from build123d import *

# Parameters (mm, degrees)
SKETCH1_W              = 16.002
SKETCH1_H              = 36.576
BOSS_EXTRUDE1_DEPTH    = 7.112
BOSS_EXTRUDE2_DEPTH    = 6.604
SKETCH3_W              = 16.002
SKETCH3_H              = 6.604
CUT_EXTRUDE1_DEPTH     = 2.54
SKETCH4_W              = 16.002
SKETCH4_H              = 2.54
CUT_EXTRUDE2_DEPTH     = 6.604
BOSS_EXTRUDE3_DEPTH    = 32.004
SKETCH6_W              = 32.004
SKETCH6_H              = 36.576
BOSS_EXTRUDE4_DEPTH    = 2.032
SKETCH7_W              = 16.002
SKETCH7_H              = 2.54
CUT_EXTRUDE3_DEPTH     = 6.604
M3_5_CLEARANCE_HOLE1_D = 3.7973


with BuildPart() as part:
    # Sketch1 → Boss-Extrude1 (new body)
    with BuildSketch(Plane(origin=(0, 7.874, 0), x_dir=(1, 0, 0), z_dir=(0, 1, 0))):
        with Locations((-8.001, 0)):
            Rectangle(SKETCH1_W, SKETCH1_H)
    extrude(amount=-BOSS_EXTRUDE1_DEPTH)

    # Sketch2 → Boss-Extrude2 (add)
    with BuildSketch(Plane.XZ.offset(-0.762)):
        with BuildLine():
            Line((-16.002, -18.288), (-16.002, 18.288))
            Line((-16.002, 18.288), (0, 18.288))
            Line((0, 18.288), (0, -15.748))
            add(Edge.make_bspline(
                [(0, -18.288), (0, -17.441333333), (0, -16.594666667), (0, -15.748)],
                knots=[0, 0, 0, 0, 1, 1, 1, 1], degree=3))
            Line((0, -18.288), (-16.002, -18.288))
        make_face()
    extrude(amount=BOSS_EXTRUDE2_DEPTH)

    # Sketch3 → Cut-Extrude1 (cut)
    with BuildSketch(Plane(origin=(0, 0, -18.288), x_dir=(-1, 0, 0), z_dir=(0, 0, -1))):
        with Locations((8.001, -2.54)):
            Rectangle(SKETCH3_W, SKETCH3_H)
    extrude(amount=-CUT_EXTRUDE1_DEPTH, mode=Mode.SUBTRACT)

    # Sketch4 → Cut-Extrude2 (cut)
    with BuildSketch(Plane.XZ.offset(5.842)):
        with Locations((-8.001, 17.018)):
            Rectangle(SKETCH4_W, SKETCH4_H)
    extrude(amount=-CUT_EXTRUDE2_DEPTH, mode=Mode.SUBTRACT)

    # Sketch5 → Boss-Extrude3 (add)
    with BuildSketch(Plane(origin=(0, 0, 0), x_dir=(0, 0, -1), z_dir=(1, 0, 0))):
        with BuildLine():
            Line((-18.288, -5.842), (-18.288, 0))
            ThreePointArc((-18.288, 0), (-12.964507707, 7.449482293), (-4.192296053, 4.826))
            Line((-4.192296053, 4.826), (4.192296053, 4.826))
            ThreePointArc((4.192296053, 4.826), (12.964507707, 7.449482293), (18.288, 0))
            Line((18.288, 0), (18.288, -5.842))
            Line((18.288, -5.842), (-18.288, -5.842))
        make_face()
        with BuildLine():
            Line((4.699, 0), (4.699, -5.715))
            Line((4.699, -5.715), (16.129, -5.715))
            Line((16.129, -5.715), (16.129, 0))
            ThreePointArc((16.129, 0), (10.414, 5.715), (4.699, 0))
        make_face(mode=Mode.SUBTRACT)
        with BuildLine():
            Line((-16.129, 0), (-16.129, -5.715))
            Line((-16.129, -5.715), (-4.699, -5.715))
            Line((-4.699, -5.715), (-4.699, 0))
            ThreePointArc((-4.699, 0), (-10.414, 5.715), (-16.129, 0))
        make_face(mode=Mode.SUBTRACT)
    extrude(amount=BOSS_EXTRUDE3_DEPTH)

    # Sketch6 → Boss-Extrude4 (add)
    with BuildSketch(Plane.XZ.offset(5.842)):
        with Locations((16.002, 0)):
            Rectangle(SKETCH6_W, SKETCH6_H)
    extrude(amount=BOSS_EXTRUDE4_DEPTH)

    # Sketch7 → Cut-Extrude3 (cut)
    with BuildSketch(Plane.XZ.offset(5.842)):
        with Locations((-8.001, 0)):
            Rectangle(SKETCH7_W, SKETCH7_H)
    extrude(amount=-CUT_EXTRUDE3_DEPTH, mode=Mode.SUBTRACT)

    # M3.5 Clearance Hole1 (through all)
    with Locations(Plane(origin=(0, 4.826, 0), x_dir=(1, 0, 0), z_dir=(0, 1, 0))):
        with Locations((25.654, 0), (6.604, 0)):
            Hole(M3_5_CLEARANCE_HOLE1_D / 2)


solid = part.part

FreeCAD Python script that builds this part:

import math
import FreeCAD as App
import Part
import Sketcher
Q = App.Units.Quantity


def add_polygon(sketch, points):
    """Adds a closed chain of lines whose ends are joined by coincident constraints."""
    first, n = sketch.GeometryCount, len(points)
    for a, b in zip(points, points[1:] + points[:1]):
        sketch.addGeometry(Part.LineSegment(App.Vector(*a, 0), App.Vector(*b, 0)), False)
    for i in range(n):
        sketch.addConstraint(Sketcher.Constraint("Coincident", first + i, 2, first + (i + 1) % n, 1))

doc = App.newDocument("Part")
body = doc.addObject("PartDesign::Body", "Body")

sketch1 = body.newObject("Sketcher::SketchObject", "Sketch")
sketch1.AttachmentSupport = (doc.getObject("XZ_Plane"), [""])
sketch1.MapMode = "FlatFace"
sketch1.AttachmentOffset = App.Placement(App.Vector(0, 0, -0.31 * 25.4), App.Rotation())
add_polygon(sketch1, [(-16.002, -18.288), (-16.002, 18.288), (0, 18.288), (0, -18.288)])
sketch1.addConstraint([
    Sketcher.Constraint("Vertical", 0),
    Sketcher.Constraint("Horizontal", 1),
    Sketcher.Constraint("Vertical", 2),
    Sketcher.Constraint("Horizontal", 3),
    Sketcher.Constraint("Symmetric", 1, 2, 2, 2, -1, 1),
    Sketcher.Constraint("DistanceX", 1, 1, 1, 2, Q("0.63 in")),
    Sketcher.Constraint("DistanceY", 0, 1, 0, 2, Q("1.44 in")),
])
pad1 = body.newObject("PartDesign::Pad", "Pad")
pad1.Profile = sketch1
pad1.Length = Q("0.28 in")

sketch2 = body.newObject("Sketcher::SketchObject", "Sketch001")
sketch2.AttachmentSupport = (doc.getObject("XZ_Plane"), [""])
sketch2.MapMode = "FlatFace"
sketch2.AttachmentOffset = App.Placement(App.Vector(0, 0, -0.03 * 25.4), App.Rotation())
sketch2.addGeometry([
    Part.LineSegment(App.Vector(-16.002, 18.288, 0), App.Vector(-16.002, -18.288, 0)),
    Part.LineSegment(App.Vector(-16.002, -18.288, 0), App.Vector(0, -18.288, 0)),
    Part.BSplineCurve([App.Vector(0, -18.288, 0), App.Vector(0, -17.441333, 0), App.Vector(0, -16.594667, 0), App.Vector(0, -15.748, 0)], [4, 4], [0, 1], False, 3, [1, 1, 1, 1], False),
    Part.LineSegment(App.Vector(0, -15.748, 0), App.Vector(0, 18.288, 0)),
    Part.LineSegment(App.Vector(0, 18.288, 0), App.Vector(-16.002, 18.288, 0)),
], False)
sketch2.addConstraint([
    Sketcher.Constraint("Block", 2),
    Sketcher.Constraint("Coincident", 0, 2, 1, 1),
    Sketcher.Constraint("Coincident", 1, 2, 2, 1),
    Sketcher.Constraint("Coincident", 2, 2, 3, 1),
    Sketcher.Constraint("Coincident", 3, 2, 4, 1),
    Sketcher.Constraint("Coincident", 4, 2, 0, 1),
    Sketcher.Constraint("Vertical", 0),
    Sketcher.Constraint("Horizontal", 1),
    Sketcher.Constraint("Vertical", 3),
    Sketcher.Constraint("Horizontal", 4),
    Sketcher.Constraint("DistanceX", 1, 1, 1, 2, Q("0.63 in")),
    Sketcher.Constraint("DistanceY", 0, 2, 0, 1, Q("1.44 in")),
])
pad2 = body.newObject("PartDesign::Pad", "Pad001")
pad2.Profile = sketch2
pad2.Length = Q("0.26 in")

sketch3 = body.newObject("Sketcher::SketchObject", "Sketch002")
sketch3.AttachmentSupport = (doc.getObject("XY_Plane"), [""])
sketch3.MapMode = "FlatFace"
sketch3.AttachmentOffset = App.Placement(App.Vector(0, 0, -0.72 * 25.4), App.Rotation())
add_polygon(sketch3, [(0, 0.762), (0, -5.842), (-16.002, -5.842), (-16.002, 0.762)])
sketch3.addConstraint([
    Sketcher.Constraint("Vertical", 0),
    Sketcher.Constraint("Horizontal", 1),
    Sketcher.Constraint("Vertical", 2),
    Sketcher.Constraint("Horizontal", 3),
    Sketcher.Constraint("PointOnObject", 0, 2, -2),
    Sketcher.Constraint("DistanceX", 1, 2, 1, 1, Q("0.63 in")),
    Sketcher.Constraint("DistanceY", 0, 2, 0, 1, Q("0.26 in")),
    Sketcher.Constraint("DistanceY", 0, 2, -1, 1, Q("0.23 in")),
])
pocket1 = body.newObject("PartDesign::Pocket", "Pocket")
pocket1.Profile = sketch3
pocket1.Length = Q("0.1 in")
pocket1.Reversed = True

sketch4 = body.newObject("Sketcher::SketchObject", "Sketch003")
sketch4.AttachmentSupport = (doc.getObject("XZ_Plane"), [""])
sketch4.MapMode = "FlatFace"
sketch4.AttachmentOffset = App.Placement(App.Vector(0, 0, 0.23 * 25.4), App.Rotation())
add_polygon(sketch4, [(-16.002, 18.288), (-16.002, 15.748), (0, 15.748), (0, 18.288)])
sketch4.addConstraint([
    Sketcher.Constraint("Vertical", 0),
    Sketcher.Constraint("Horizontal", 1),
    Sketcher.Constraint("Vertical", 2),
    Sketcher.Constraint("Horizontal", 3),
    Sketcher.Constraint("PointOnObject", 1, 2, -2),
    Sketcher.Constraint("DistanceY", 0, 2, 0, 1, Q("0.1 in")),
    Sketcher.Constraint("DistanceX", 1, 1, 1, 2, Q("0.63 in")),
    Sketcher.Constraint("DistanceY", -1, 1, 0, 2, Q("0.62 in")),
])
pocket2 = body.newObject("PartDesign::Pocket", "Pocket001")
pocket2.Profile = sketch4
pocket2.Length = Q("0.26 in")

sketch5 = body.newObject("Sketcher::SketchObject", "Sketch004")
sketch5.AttachmentSupport = (doc.getObject("YZ_Plane"), [""])
sketch5.MapMode = "FlatFace"
sketch5.addGeometry([
    Part.LineSegment(App.Vector(0, 18.288, 0), App.Vector(-5.842, 18.288, 0)),
    Part.LineSegment(App.Vector(-5.842, 18.288, 0), App.Vector(-5.842, -18.288, 0)),
    Part.LineSegment(App.Vector(-5.842, -18.288, 0), App.Vector(0, -18.288, 0)),
    Part.ArcOfCircle(Part.Circle(App.Vector(0, -10.414, 0), App.Vector(0, 0, 1), 7.874), math.radians(-90), math.radians(52.200278)),
    Part.LineSegment(App.Vector(4.826, -4.192296, 0), App.Vector(4.826, 4.192296, 0)),
    Part.ArcOfCircle(Part.Circle(App.Vector(0, 10.414, 0), App.Vector(0, 0, 1), 7.874), math.radians(-52.200278), math.radians(90)),
    Part.ArcOfCircle(Part.Circle(App.Vector(0, 10.414, 0), App.Vector(0, 0, 1), 5.715), math.radians(-90), math.radians(90)),
    Part.LineSegment(App.Vector(0, 4.699, 0), App.Vector(-5.715, 4.699, 0)),
    Part.LineSegment(App.Vector(-5.715, 4.699, 0), App.Vector(-5.715, 16.129, 0)),
    Part.LineSegment(App.Vector(-5.715, 16.129, 0), App.Vector(0, 16.129, 0)),
    Part.ArcOfCircle(Part.Circle(App.Vector(0, -10.414, 0), App.Vector(0, 0, 1), 5.715), math.radians(-90), math.radians(90)),
    Part.LineSegment(App.Vector(0, -16.129, 0), App.Vector(-5.715, -16.129, 0)),
    Part.LineSegment(App.Vector(-5.715, -16.129, 0), App.Vector(-5.715, -4.699, 0)),
    Part.LineSegment(App.Vector(-5.715, -4.699, 0), App.Vector(0, -4.699, 0)),
], False)
sketch5.addConstraint([
    Sketcher.Constraint("Coincident", 0, 2, 1, 1),
    Sketcher.Constraint("Coincident", 1, 2, 2, 1),
    Sketcher.Constraint("Tangent", 2, 2, 3, 1),
    Sketcher.Constraint("Coincident", 3, 2, 4, 1),
    Sketcher.Constraint("Coincident", 4, 2, 5, 1),
    Sketcher.Constraint("Tangent", 5, 2, 0, 1),
    Sketcher.Constraint("Tangent", 6, 1, 7, 1),
    Sketcher.Constraint("Coincident", 7, 2, 8, 1),
    Sketcher.Constraint("Coincident", 8, 2, 9, 1),
    Sketcher.Constraint("Tangent", 9, 2, 6, 2),
    Sketcher.Constraint("Tangent", 10, 1, 11, 1),
    Sketcher.Constraint("Coincident", 11, 2, 12, 1),
    Sketcher.Constraint("Coincident", 12, 2, 13, 1),
    Sketcher.Constraint("Tangent", 13, 2, 10, 2),
    Sketcher.Constraint("Horizontal", 0),
    Sketcher.Constraint("Vertical", 1),
    Sketcher.Constraint("Horizontal", 2),
    Sketcher.Constraint("Vertical", 4),
    Sketcher.Constraint("Horizontal", 7),
    Sketcher.Constraint("Vertical", 8),
    Sketcher.Constraint("Horizontal", 9),
    Sketcher.Constraint("Horizontal", 11),
    Sketcher.Constraint("Vertical", 12),
    Sketcher.Constraint("Horizontal", 13),
    Sketcher.Constraint("Coincident", 6, 3, 5, 3),
    Sketcher.Constraint("Coincident", 10, 3, 3, 3),
    Sketcher.Constraint("Equal", 3, 5),
    Sketcher.Constraint("Equal", 6, 10),
    Sketcher.Constraint("Symmetric", 3, 3, 5, 3, -1, 1),
    Sketcher.Constraint("PointOnObject", 3, 3, -2),
    Sketcher.Constraint("Vertical", 8, 2, 11, 2),
    Sketcher.Constraint("Radius", 3, Q("0.31 in")),
    Sketcher.Constraint("Radius", 6, Q("0.225 in")),
    Sketcher.Constraint("DistanceX", 0, 2, 0, 1, Q("0.23 in")),
    Sketcher.Constraint("DistanceY", 1, 2, 1, 1, Q("1.44 in")),
    Sketcher.Constraint("DistanceX", 7, 2, 7, 1, Q("0.225 in")),
    Sketcher.Constraint("DistanceX", -1, 1, 3, 2, Q("0.19 in")),
])
pad3 = body.newObject("PartDesign::Pad", "Pad002")
pad3.Profile = sketch5
pad3.Length = Q("1.26 in")

sketch6 = body.newObject("Sketcher::SketchObject", "Sketch005")
sketch6.AttachmentSupport = (doc.getObject("XZ_Plane"), [""])
sketch6.MapMode = "FlatFace"
sketch6.AttachmentOffset = App.Placement(App.Vector(0, 0, 0.23 * 25.4), App.Rotation())
add_polygon(sketch6, [(0, 18.288), (0, -18.288), (32.004, -18.288), (32.004, 18.288)])
sketch6.addConstraint([
    Sketcher.Constraint("Vertical", 0),
    Sketcher.Constraint("Horizontal", 1),
    Sketcher.Constraint("Vertical", 2),
    Sketcher.Constraint("Horizontal", 3),
    Sketcher.Constraint("Symmetric", 0, 2, 3, 2, -1, 1),
    Sketcher.Constraint("DistanceX", 1, 1, 1, 2, Q("1.26 in")),
    Sketcher.Constraint("DistanceY", 0, 2, 0, 1, Q("1.44 in")),
])
pad4 = body.newObject("PartDesign::Pad", "Pad003")
pad4.Profile = sketch6
pad4.Length = Q("0.08 in")

sketch7 = body.newObject("Sketcher::SketchObject", "Sketch006")
sketch7.AttachmentSupport = (doc.getObject("XZ_Plane"), [""])
sketch7.MapMode = "FlatFace"
sketch7.AttachmentOffset = App.Placement(App.Vector(0, 0, 0.23 * 25.4), App.Rotation())
add_polygon(sketch7, [(-16.002, 1.27), (-16.002, -1.27), (0, -1.27), (0, 1.27)])
sketch7.addConstraint([
    Sketcher.Constraint("Vertical", 0),
    Sketcher.Constraint("Horizontal", 1),
    Sketcher.Constraint("Vertical", 2),
    Sketcher.Constraint("Horizontal", 3),
    Sketcher.Constraint("Symmetric", 1, 2, 2, 2, -1, 1),
    Sketcher.Constraint("DistanceY", 0, 2, 0, 1, Q("0.1 in")),
    Sketcher.Constraint("DistanceX", 1, 1, 1, 2, Q("0.63 in")),
])
pocket3 = body.newObject("PartDesign::Pocket", "Pocket002")
pocket3.Profile = sketch7
pocket3.Length = Q("0.26 in")

sketch8 = body.newObject("Sketcher::SketchObject", "Sketch007")
sketch8.AttachmentSupport = (doc.getObject("XZ_Plane"), [""])
sketch8.MapMode = "FlatFace"
sketch8.AttachmentOffset = App.Placement(App.Vector(0, 0, -0.19 * 25.4), App.Rotation())
sketch8.addGeometry([
    Part.Circle(App.Vector(25.654, 0, 0), App.Vector(0, 0, 1), 1.89865),
    Part.Circle(App.Vector(6.604, 0, 0), App.Vector(0, 0, 1), 1.89865),
], False)
sketch8.addConstraint([
    Sketcher.Constraint("Equal", 0, 1),
    Sketcher.Constraint("PointOnObject", 0, 3, -1),
    Sketcher.Constraint("PointOnObject", 1, 3, -1),
    Sketcher.Constraint("Diameter", 0, Q("0.1495 in")),
    Sketcher.Constraint("DistanceX", -1, 1, 0, 3, Q("1.01 in")),
    Sketcher.Constraint("DistanceX", -1, 1, 1, 3, Q("0.26 in")),
])
doc.recompute()
hole = body.newObject("PartDesign::Hole", "Hole")
hole.Profile = sketch8
hole.ThreadType = "None"
hole.Diameter = Q("0.1495 in")
hole.DepthType = "ThroughAll"
hole.Reversed = True

doc.recompute()
